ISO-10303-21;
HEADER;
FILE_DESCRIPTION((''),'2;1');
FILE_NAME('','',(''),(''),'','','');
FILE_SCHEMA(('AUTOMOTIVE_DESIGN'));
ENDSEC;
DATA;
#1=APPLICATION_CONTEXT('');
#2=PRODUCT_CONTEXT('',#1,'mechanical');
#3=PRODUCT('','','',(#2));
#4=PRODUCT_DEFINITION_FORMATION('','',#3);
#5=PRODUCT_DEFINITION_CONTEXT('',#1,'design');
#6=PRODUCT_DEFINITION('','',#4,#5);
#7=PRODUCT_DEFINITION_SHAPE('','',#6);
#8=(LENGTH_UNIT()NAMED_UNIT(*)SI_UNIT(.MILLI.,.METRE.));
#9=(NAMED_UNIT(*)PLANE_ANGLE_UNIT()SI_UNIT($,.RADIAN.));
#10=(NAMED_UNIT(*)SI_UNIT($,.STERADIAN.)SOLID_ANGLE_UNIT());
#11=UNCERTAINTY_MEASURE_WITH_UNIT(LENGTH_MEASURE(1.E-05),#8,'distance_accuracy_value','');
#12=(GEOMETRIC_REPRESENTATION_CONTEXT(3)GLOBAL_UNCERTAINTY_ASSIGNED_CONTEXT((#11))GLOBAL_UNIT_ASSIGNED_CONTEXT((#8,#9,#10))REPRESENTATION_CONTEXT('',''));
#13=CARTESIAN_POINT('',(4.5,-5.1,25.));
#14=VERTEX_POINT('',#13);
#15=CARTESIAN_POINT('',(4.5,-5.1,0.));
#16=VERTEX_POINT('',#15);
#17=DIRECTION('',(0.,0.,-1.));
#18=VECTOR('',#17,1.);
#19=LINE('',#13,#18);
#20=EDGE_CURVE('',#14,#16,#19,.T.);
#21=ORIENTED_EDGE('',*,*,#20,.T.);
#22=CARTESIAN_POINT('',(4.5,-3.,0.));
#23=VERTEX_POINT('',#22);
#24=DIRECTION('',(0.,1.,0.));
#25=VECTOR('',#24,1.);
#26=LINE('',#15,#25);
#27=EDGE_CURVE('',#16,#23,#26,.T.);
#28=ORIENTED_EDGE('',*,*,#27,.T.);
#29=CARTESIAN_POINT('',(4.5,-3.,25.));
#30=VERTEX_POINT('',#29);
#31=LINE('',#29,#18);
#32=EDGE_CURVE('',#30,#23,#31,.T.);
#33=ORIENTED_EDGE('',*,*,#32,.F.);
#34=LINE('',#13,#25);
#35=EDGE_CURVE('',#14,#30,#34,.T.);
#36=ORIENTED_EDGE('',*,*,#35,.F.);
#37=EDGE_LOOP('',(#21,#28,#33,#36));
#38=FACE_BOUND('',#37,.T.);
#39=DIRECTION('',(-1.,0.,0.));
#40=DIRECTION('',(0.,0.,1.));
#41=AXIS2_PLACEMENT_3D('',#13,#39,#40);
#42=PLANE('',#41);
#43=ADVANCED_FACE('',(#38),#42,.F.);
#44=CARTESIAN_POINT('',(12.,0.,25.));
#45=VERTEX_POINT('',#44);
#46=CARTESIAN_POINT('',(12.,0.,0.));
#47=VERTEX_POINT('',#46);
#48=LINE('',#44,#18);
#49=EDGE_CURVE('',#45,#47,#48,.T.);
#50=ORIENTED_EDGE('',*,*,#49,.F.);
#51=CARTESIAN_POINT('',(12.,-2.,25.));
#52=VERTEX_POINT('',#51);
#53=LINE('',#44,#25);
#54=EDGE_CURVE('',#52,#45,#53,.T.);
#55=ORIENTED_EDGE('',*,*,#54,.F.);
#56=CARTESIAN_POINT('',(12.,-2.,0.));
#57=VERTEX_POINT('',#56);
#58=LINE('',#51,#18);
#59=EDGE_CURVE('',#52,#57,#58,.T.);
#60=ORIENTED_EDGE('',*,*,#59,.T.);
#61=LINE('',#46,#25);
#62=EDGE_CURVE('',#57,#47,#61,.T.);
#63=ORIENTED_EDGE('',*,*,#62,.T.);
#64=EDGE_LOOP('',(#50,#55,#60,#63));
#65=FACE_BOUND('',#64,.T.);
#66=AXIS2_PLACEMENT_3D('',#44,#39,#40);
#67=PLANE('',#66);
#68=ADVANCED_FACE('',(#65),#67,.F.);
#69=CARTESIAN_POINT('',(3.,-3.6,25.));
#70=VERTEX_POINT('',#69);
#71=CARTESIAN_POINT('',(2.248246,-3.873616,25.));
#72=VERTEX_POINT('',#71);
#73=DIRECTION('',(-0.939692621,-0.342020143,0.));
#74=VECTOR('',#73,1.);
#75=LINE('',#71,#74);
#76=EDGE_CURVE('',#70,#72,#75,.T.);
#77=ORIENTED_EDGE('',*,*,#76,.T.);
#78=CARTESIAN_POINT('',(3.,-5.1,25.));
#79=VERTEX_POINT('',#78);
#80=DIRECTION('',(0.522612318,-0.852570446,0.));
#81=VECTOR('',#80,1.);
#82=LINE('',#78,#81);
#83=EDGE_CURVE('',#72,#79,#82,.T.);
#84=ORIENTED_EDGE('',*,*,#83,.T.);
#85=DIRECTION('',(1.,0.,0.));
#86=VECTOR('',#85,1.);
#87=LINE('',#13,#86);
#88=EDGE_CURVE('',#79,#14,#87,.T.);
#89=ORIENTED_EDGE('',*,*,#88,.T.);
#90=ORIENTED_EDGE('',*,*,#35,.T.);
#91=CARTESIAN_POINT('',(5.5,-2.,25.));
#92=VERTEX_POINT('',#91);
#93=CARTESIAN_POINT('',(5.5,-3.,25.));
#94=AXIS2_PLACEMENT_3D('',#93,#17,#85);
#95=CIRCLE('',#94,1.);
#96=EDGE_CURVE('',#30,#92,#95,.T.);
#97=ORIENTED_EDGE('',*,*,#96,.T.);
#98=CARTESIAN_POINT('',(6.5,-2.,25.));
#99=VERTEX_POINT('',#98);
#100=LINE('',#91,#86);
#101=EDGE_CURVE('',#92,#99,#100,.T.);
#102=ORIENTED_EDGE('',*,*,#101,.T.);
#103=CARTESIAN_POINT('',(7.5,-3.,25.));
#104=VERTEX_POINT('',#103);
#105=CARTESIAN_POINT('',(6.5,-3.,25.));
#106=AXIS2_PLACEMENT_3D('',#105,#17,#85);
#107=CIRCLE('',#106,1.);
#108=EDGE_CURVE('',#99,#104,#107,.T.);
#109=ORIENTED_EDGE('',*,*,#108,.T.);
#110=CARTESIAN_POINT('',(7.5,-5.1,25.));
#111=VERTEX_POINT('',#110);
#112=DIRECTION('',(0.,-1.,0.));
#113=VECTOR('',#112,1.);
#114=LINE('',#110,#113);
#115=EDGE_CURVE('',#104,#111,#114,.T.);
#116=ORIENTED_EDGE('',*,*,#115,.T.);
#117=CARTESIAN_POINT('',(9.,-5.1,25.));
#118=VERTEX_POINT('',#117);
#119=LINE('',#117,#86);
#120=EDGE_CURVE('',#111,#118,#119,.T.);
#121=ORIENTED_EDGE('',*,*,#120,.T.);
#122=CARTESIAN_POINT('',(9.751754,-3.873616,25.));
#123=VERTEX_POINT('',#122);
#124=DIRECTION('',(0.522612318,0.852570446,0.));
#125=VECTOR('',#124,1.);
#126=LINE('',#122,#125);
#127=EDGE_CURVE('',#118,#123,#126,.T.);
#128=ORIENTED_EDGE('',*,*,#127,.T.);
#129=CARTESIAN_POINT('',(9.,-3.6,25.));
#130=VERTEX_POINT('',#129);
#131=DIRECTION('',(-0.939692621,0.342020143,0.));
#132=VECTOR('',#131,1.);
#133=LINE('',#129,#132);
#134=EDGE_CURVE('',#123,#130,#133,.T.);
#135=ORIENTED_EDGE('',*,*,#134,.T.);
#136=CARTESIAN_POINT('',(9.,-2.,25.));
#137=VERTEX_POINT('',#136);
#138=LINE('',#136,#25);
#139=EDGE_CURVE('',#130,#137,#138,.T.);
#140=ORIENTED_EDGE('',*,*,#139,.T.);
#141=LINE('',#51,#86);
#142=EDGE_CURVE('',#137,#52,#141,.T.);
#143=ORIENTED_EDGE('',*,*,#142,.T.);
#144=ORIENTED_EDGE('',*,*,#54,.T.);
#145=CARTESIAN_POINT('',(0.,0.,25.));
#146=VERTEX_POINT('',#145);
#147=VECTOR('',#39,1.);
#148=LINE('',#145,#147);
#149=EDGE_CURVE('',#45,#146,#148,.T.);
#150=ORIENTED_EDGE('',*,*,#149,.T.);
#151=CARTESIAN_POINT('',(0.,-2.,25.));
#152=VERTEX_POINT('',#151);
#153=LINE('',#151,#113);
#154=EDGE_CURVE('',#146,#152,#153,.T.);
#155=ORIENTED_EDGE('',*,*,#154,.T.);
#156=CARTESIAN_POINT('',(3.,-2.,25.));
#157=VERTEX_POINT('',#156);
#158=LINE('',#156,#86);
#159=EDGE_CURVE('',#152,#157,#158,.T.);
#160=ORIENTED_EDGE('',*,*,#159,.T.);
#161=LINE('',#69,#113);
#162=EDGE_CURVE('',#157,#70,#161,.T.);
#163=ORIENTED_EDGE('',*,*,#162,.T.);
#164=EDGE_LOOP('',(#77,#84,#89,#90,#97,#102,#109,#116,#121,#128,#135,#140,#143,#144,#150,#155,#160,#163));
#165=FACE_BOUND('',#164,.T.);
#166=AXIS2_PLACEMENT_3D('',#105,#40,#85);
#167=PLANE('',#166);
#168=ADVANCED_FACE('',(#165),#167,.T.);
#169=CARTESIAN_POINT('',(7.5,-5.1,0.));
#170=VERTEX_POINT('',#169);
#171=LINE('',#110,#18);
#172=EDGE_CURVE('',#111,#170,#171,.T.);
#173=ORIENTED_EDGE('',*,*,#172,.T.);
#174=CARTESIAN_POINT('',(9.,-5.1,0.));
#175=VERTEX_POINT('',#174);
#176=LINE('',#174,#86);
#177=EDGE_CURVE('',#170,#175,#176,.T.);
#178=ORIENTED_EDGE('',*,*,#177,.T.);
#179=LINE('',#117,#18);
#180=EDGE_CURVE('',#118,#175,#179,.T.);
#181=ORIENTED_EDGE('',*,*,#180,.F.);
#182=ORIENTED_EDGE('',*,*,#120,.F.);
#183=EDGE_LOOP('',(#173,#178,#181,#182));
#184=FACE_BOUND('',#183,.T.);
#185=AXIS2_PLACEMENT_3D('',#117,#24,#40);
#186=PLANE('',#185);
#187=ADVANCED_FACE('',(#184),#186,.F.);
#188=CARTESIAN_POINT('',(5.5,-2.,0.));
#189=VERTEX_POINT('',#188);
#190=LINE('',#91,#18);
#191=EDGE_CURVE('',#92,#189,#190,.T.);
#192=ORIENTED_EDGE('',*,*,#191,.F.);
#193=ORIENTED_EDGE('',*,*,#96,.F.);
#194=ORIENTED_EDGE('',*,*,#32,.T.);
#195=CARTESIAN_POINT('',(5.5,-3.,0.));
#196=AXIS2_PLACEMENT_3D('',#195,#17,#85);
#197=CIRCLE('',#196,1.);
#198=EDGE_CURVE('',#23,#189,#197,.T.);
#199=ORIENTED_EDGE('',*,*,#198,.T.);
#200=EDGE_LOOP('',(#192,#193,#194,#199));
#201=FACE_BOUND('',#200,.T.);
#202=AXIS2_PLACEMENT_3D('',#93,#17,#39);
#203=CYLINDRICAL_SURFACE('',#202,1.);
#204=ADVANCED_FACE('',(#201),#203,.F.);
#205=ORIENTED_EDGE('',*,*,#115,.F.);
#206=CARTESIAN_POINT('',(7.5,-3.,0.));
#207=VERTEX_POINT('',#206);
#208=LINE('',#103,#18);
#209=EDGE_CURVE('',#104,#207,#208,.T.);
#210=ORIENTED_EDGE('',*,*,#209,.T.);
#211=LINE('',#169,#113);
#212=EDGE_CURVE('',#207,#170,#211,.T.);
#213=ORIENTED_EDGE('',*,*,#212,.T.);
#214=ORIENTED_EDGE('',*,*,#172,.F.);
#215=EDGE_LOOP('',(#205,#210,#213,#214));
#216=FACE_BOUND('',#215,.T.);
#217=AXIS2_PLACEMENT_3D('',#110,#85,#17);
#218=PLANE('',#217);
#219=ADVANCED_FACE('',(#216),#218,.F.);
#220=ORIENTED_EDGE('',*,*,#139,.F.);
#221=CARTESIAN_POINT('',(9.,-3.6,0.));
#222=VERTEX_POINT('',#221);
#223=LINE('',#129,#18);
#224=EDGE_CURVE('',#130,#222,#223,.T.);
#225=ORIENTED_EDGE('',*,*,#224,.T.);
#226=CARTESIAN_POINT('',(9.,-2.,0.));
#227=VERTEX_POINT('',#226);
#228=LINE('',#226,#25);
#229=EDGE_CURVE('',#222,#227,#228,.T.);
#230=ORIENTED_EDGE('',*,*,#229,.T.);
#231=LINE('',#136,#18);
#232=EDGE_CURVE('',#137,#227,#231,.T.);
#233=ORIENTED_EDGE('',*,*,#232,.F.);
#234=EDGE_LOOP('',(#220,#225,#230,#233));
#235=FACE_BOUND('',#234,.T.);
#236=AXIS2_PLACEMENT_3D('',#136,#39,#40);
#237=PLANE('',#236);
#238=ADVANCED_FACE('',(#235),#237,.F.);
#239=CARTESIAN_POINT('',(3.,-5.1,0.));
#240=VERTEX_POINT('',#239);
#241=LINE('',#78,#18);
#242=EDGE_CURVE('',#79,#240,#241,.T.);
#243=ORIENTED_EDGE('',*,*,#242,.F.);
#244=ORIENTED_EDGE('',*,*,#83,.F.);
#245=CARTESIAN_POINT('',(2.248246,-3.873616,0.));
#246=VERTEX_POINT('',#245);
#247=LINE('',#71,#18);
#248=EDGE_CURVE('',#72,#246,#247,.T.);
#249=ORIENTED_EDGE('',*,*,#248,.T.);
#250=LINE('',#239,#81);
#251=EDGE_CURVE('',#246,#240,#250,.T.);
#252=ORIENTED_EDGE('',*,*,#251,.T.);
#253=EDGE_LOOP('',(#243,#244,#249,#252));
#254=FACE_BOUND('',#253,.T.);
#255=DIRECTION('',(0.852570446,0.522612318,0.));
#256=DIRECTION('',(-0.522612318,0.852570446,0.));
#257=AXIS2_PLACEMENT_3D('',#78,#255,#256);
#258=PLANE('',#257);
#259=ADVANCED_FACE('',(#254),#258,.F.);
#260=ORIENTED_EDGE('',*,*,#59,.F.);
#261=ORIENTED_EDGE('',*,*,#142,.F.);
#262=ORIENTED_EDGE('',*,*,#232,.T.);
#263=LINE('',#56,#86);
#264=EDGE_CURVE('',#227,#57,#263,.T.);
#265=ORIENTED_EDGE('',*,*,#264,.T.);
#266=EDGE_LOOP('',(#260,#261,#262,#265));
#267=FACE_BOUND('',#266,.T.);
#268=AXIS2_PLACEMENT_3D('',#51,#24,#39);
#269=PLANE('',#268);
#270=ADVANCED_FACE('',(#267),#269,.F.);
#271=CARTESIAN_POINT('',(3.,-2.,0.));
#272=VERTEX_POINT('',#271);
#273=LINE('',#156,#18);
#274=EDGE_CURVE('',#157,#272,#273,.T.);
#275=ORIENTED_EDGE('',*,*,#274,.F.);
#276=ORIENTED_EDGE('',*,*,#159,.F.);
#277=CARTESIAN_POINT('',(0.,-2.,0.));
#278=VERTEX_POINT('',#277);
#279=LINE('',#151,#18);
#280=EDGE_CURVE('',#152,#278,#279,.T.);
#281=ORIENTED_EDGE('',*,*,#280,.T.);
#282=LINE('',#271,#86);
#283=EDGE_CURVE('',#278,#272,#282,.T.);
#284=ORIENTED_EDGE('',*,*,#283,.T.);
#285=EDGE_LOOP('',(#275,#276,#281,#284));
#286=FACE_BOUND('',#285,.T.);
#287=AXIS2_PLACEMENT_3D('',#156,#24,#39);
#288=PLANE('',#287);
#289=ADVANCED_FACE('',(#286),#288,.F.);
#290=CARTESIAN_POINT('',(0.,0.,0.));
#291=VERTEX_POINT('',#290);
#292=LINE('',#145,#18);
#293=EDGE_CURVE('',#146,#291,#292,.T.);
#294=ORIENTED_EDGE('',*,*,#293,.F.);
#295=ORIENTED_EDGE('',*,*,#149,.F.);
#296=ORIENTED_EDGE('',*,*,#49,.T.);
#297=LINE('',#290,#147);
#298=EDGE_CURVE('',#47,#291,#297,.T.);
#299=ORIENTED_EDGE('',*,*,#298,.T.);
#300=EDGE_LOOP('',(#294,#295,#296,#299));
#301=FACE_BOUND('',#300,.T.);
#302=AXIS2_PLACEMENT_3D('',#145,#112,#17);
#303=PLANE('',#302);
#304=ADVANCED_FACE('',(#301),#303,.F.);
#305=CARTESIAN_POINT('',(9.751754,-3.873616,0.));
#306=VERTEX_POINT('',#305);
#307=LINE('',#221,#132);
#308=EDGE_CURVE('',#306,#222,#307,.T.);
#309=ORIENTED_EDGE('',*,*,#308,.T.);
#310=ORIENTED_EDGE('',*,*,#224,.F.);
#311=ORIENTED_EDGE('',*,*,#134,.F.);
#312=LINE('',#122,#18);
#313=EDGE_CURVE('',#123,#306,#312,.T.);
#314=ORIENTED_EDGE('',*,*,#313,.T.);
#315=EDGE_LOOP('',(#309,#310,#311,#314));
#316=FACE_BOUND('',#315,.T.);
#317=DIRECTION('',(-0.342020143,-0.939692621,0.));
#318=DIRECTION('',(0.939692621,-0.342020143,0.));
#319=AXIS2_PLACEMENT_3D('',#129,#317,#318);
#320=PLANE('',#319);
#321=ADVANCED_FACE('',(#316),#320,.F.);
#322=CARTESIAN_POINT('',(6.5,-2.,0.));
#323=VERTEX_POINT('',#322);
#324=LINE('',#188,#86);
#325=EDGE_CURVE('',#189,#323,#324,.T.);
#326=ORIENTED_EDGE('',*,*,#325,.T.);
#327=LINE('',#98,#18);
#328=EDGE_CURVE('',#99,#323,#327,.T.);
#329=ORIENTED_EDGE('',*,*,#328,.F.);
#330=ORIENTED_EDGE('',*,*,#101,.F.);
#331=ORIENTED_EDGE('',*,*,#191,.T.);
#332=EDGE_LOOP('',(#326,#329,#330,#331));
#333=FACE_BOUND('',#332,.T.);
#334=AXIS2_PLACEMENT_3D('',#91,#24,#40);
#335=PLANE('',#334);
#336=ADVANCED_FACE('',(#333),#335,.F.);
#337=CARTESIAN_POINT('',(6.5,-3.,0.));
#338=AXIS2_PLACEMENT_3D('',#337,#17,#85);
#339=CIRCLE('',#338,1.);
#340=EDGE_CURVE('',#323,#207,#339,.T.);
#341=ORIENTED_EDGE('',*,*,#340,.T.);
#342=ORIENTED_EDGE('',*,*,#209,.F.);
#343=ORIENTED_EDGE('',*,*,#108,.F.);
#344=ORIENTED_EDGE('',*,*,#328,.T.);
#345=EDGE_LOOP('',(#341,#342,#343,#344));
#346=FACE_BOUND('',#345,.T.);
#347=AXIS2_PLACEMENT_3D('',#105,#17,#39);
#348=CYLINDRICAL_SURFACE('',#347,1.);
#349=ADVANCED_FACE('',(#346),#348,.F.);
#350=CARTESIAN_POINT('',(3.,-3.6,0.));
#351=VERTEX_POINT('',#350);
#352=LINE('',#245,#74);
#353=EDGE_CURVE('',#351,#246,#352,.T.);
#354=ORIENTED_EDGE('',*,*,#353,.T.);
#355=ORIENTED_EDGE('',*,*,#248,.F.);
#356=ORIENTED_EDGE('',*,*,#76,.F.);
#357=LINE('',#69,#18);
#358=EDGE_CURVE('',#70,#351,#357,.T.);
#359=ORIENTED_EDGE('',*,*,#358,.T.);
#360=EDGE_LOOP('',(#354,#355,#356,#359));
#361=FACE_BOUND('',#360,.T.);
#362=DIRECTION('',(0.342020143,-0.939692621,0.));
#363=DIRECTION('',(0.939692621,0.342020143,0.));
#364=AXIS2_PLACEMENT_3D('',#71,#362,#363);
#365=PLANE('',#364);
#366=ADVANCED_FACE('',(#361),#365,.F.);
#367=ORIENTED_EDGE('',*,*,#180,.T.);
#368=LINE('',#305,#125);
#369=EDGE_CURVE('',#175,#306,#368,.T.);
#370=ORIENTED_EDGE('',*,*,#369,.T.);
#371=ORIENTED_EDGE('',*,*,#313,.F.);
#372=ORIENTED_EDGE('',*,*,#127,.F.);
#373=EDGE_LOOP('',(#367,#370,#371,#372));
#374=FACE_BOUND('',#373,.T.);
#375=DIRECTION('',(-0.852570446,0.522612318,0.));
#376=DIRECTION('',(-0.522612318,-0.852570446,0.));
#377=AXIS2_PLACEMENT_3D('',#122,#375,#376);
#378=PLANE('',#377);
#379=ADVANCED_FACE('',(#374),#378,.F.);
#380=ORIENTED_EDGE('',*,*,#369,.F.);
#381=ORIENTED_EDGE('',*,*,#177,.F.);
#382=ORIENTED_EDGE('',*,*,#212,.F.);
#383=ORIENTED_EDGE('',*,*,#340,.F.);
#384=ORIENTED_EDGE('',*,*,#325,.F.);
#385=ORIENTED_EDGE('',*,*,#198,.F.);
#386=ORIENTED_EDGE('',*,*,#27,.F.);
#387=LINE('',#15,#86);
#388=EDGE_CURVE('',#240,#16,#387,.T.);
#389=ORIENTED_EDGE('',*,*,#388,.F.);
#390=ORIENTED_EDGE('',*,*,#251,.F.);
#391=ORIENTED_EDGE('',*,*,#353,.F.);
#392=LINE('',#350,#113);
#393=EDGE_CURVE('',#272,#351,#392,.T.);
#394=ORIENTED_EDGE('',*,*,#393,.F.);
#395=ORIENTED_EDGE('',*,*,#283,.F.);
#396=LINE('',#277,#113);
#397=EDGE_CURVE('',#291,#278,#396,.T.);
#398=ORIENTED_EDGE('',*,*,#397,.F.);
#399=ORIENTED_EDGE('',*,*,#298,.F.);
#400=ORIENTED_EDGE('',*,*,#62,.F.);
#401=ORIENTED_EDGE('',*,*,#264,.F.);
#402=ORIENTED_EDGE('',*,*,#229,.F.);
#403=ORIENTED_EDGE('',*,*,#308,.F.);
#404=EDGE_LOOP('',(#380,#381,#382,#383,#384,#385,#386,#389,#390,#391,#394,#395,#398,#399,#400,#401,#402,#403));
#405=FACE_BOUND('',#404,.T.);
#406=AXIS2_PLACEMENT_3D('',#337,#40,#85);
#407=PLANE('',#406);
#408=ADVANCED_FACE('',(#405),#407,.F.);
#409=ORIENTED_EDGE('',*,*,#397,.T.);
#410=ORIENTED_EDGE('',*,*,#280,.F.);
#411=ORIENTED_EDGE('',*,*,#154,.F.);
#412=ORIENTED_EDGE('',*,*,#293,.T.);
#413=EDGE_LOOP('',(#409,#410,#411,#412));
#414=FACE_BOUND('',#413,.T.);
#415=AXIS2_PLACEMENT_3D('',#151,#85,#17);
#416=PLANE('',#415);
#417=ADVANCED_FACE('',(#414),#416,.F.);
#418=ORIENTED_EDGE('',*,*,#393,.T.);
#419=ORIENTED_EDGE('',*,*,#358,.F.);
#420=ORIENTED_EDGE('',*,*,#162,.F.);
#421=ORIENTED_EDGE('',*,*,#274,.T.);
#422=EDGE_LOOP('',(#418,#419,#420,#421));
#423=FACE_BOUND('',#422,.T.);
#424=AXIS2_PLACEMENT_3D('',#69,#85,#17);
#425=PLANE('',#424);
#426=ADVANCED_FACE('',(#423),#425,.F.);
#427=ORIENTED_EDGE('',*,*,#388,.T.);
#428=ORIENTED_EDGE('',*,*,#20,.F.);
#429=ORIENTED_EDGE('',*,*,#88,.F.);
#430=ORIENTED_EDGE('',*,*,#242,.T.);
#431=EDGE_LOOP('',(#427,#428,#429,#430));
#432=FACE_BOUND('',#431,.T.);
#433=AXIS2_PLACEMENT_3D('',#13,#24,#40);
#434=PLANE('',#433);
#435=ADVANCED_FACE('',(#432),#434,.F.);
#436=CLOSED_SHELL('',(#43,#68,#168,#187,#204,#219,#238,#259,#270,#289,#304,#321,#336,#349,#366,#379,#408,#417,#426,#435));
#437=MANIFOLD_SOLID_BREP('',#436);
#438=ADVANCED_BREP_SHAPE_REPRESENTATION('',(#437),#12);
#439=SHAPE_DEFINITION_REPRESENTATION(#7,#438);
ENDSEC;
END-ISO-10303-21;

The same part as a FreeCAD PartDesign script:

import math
import FreeCAD as App
import Part
import Sketcher

V = App.Vector
Q = App.Units.Quantity

doc = App.newDocument("Part")
body = doc.addObject("PartDesign::Body", "Body")

sketch1 = doc.addObject("Sketcher::SketchObject", "Sketch")
body.addObject(sketch1)
sketch1.AttachmentSupport = (doc.XY_Plane, [""])
sketch1.MapMode = "FlatFace"
sketch1.addGeometry([
    Part.LineSegment(V(12, 0, 0), V(0, 0, 0)),
    Part.LineSegment(V(0, 0, 0), V(0, -2, 0)),
    Part.LineSegment(V(0, -2, 0), V(3, -2, 0)),
    Part.LineSegment(V(3, -2, 0), V(3, -3.6, 0)),
    Part.LineSegment(V(3, -3.6, 0), V(2.248246, -3.873616, 0)),
    Part.LineSegment(V(2.248246, -3.873616, 0), V(3, -5.1, 0)),
    Part.LineSegment(V(3, -5.1, 0), V(4.5, -5.1, 0)),
    Part.LineSegment(V(4.5, -5.1, 0), V(4.5, -3, 0)),
    Part.ArcOfCircle(Part.Circle(V(5.5, -3, 0), V(0, 0, 1), 1), math.radians(90), math.radians(180)),
    Part.LineSegment(V(5.5, -2, 0), V(6.5, -2, 0)),
    Part.ArcOfCircle(Part.Circle(V(6.5, -3, 0), V(0, 0, 1), 1), math.radians(0), math.radians(90)),
    Part.LineSegment(V(7.5, -3, 0), V(7.5, -5.1, 0)),
    Part.LineSegment(V(7.5, -5.1, 0), V(9, -5.1, 0)),
    Part.LineSegment(V(9, -5.1, 0), V(9.751754, -3.873616, 0)),
    Part.LineSegment(V(9.751754, -3.873616, 0), V(9, -3.6, 0)),
    Part.LineSegment(V(9, -3.6, 0), V(9, -2, 0)),
    Part.LineSegment(V(9, -2, 0), V(12, -2, 0)),
    Part.LineSegment(V(12, -2, 0), V(12, 0, 0)),
], False)
sketch1.addConstraint([
    Sketcher.Constraint("Coincident", 0, 2, 1, 1),
    Sketcher.Constraint("Coincident", 1, 2, 2, 1),
    Sketcher.Constraint("Coincident", 2, 2, 3, 1),
    Sketcher.Constraint("Coincident", 3, 2, 4, 1),
    Sketcher.Constraint("Coincident", 4, 2, 5, 1),
    Sketcher.Constraint("Coincident", 5, 2, 6, 1),
    Sketcher.Constraint("Coincident", 6, 2, 7, 1),
    Sketcher.Constraint("Tangent", 7, 2, 8, 2),
    Sketcher.Constraint("Tangent", 8, 1, 9, 1),
    Sketcher.Constraint("Tangent", 9, 2, 10, 2),
    Sketcher.Constraint("Tangent", 10, 1, 11, 1),
    Sketcher.Constraint("Coincident", 11, 2, 12, 1),
    Sketcher.Constraint("Coincident", 12, 2, 13, 1),
    Sketcher.Constraint("Coincident", 13, 2, 14, 1),
    Sketcher.Constraint("Coincident", 14, 2, 15, 1),
    Sketcher.Constraint("Coincident", 15, 2, 16, 1),
    Sketcher.Constraint("Coincident", 16, 2, 17, 1),
    Sketcher.Constraint("Coincident", 17, 2, 0, 1),
    Sketcher.Constraint("Horizontal", 0),
    Sketcher.Constraint("Vertical", 1),
    Sketcher.Constraint("Horizontal", 2),
    Sketcher.Constraint("Vertical", 3),
    Sketcher.Constraint("Horizontal", 6),
    Sketcher.Constraint("Vertical", 7),
    Sketcher.Constraint("Horizontal", 9),
    Sketcher.Constraint("Vertical", 11),
    Sketcher.Constraint("Horizontal", 12),
    Sketcher.Constraint("Vertical", 15),
    Sketcher.Constraint("Horizontal", 16),
    Sketcher.Constraint("Vertical", 17),
    Sketcher.Constraint("Coincident", 0, 2, -1, 1),
    Sketcher.Constraint("Equal", 8, 10),
    Sketcher.Constraint("Horizontal", 2, 2, 8, 1),
    Sketcher.Constraint("Horizontal", 6, 2, 11, 2),
    Sketcher.Constraint("Horizontal", 4, 2, 13, 2),
    Sketcher.Constraint("Horizontal", 3, 2, 14, 2),
    Sketcher.Constraint("Horizontal", 9, 2, 15, 2),
    Sketcher.Constraint("Vertical", 3, 2, 5, 2),
    Sketcher.Constraint("Vertical", 12, 2, 14, 2),
    Sketcher.Constraint("Equal", 6, 12),
    Sketcher.Constraint("Equal", 2, 16),
    Sketcher.Constraint("Equal", 5, 13),
    Sketcher.Constraint("Radius", 8, Q("1 mm")),
    Sketcher.Constraint("DistanceX", 0, 2, 0, 1, Q("12 mm")),
    Sketcher.Constraint("DistanceX", 2, 1, 2, 2, Q("3 mm")),
    Sketcher.Constraint("DistanceX", 9, 1, 9, 2, Q("1 mm")),
    Sketcher.Constraint("DistanceY", 1, 2, 1, 1, Q("2 mm")),
    Sketcher.Constraint("Angle", 4, Q("-160 deg")),
    Sketcher.Constraint("DistanceY", 3, 2, 3, 1, Q("1.6 mm")),
    Sketcher.Constraint("DistanceY", 7, 1, 7, 2, Q("2.1 mm")),
    Sketcher.Constraint("Distance", 4, Q("0.8 mm")),
])
pad1 = doc.addObject("PartDesign::Pad", "Pad")
body.addObject(pad1)
pad1.Profile = sketch1
pad1.Length = 25

doc.recompute()
